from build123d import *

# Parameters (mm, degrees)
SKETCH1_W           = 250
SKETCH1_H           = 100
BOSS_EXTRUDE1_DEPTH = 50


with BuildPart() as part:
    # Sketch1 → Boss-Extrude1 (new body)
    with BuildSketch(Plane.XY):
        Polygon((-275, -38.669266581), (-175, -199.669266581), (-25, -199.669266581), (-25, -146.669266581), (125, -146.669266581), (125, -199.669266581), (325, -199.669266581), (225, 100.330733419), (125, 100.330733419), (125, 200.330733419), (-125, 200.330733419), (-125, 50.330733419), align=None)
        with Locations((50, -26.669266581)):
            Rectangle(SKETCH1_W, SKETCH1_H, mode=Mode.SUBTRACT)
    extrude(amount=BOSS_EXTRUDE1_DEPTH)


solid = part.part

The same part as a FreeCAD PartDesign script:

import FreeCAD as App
import Part
import Sketcher
from FreeCAD import Vector
Q = App.Units.Quantity


def add_polygon(sketch, points):
    """Adds a closed chain of lines whose ends are joined by coincident constraints."""
    first, n = sketch.GeometryCount, len(points)
    for a, b in zip(points, points[1:] + points[:1]):
        sketch.addGeometry(Part.LineSegment(App.Vector(*a, 0), App.Vector(*b, 0)), False)
    for i in range(n):
        sketch.addConstraint(Sketcher.Constraint("Coincident", first + i, 2, first + (i + 1) % n, 1))

doc = App.newDocument("Part")
params = doc.addObject("Spreadsheet::Sheet", "Params")
for row, (alias, value) in enumerate([
    ("sketch1_width", "150 mm"),
    ("sketch1_width2", "200 mm"),
    ("sketch1_width3", "100 mm"),
    ("sketch1_width4", "250 mm"),
    ("sketch1_height", "53 mm"),
    ("pad1_length", "50 mm"),
], start=1):
    params.set(f"A{row}", alias)
    params.set(f"B{row}", "=" + value)
    params.setAlias(f"B{row}", alias)

body = doc.addObject("PartDesign::Body", "Body")

sketch1 = body.newObject("Sketcher::SketchObject", "Sketch")
sketch1.AttachmentSupport = (doc.getObject("XY_Plane"), [""])
sketch1.MapMode = "FlatFace"
add_polygon(sketch1, [(-275, -38.669267), (-175, -199.669267), (-25, -199.669267), (-25, -146.669267), (125, -146.669267), (125, -199.669267), (325, -199.669267), (225, 100.330733), (125, 100.330733), (125, 200.330733), (-125, 200.330733), (-125, 50.330733)])
add_polygon(sketch1, [(175, -76.669267), (-75, -76.669267), (-75, 23.330733), (175, 23.330733)])
sketch1.addConstraint([
    Sketcher.Constraint("Horizontal", 1),
    Sketcher.Constraint("Vertical", 2),
    Sketcher.Constraint("Horizontal", 3),
    Sketcher.Constraint("Vertical", 4),
    Sketcher.Constraint("Horizontal", 5),
    Sketcher.Constraint("Horizontal", 7),
    Sketcher.Constraint("Vertical", 8),
    Sketcher.Constraint("Horizontal", 9),
    Sketcher.Constraint("Vertical", 10),
    Sketcher.Constraint("Horizontal", 12),
    Sketcher.Constraint("Vertical", 13),
    Sketcher.Constraint("Horizontal", 14),
    Sketcher.Constraint("Vertical", 15),
    Sketcher.Constraint("Horizontal", 1, 2, 4, 2),
    Sketcher.Constraint("Vertical", 4, 2, 7, 2),
    Sketcher.Constraint("Equal", 1, 3),
    Sketcher.Constraint("Equal", 9, 12),
    Sketcher.Constraint("Equal", 7, 8),
    Sketcher.Constraint("Equal", 3, 10),
    Sketcher.Constraint("Equal", 8, 13),
    Sketcher.Constraint("DistanceX", 1, 1, 1, 2, Q("150 mm")),
    Sketcher.Constraint("DistanceX", 5, 1, 5, 2, Q("200 mm")),
    Sketcher.Constraint("DistanceX", 7, 2, 7, 1, Q("100 mm")),
    Sketcher.Constraint("DistanceX", 9, 2, 9, 1, Q("250 mm")),
    Sketcher.Constraint("DistanceY", 2, 1, 2, 2, Q("53 mm")),
    Sketcher.Constraint("DistanceX", 0, 2, -1, 1, Q("175 mm")),
    Sketcher.Constraint("DistanceX", 11, 2, -1, 1, Q("275 mm")),
    Sketcher.Constraint("DistanceX", 12, 2, -1, 1, Q("75 mm")),
    Sketcher.Constraint("DistanceY", 3, 2, 6, 2, Q("247 mm")),
    Sketcher.Constraint("DistanceY", 11, 2, 10, 2, Q("89 mm")),
    Sketcher.Constraint("DistanceY", 2, 2, 12, 2, Q("70 mm")),
    Sketcher.Constraint("DistanceY", 0, 2, -1, 1, Q("199.669267 mm")),
])
sketch1.setExpression("Constraints[36]", "Params.sketch1_width")
sketch1.setExpression("Constraints[37]", "Params.sketch1_width2")
sketch1.setExpression("Constraints[38]", "Params.sketch1_width3")
sketch1.setExpression("Constraints[39]", "Params.sketch1_width4")
sketch1.setExpression("Constraints[40]", "Params.sketch1_height")
pad1 = body.newObject("PartDesign::Pad", "Pad")
pad1.Profile = sketch1
pad1.setExpression("Length", "Params.pad1_length")

doc.recompute()
